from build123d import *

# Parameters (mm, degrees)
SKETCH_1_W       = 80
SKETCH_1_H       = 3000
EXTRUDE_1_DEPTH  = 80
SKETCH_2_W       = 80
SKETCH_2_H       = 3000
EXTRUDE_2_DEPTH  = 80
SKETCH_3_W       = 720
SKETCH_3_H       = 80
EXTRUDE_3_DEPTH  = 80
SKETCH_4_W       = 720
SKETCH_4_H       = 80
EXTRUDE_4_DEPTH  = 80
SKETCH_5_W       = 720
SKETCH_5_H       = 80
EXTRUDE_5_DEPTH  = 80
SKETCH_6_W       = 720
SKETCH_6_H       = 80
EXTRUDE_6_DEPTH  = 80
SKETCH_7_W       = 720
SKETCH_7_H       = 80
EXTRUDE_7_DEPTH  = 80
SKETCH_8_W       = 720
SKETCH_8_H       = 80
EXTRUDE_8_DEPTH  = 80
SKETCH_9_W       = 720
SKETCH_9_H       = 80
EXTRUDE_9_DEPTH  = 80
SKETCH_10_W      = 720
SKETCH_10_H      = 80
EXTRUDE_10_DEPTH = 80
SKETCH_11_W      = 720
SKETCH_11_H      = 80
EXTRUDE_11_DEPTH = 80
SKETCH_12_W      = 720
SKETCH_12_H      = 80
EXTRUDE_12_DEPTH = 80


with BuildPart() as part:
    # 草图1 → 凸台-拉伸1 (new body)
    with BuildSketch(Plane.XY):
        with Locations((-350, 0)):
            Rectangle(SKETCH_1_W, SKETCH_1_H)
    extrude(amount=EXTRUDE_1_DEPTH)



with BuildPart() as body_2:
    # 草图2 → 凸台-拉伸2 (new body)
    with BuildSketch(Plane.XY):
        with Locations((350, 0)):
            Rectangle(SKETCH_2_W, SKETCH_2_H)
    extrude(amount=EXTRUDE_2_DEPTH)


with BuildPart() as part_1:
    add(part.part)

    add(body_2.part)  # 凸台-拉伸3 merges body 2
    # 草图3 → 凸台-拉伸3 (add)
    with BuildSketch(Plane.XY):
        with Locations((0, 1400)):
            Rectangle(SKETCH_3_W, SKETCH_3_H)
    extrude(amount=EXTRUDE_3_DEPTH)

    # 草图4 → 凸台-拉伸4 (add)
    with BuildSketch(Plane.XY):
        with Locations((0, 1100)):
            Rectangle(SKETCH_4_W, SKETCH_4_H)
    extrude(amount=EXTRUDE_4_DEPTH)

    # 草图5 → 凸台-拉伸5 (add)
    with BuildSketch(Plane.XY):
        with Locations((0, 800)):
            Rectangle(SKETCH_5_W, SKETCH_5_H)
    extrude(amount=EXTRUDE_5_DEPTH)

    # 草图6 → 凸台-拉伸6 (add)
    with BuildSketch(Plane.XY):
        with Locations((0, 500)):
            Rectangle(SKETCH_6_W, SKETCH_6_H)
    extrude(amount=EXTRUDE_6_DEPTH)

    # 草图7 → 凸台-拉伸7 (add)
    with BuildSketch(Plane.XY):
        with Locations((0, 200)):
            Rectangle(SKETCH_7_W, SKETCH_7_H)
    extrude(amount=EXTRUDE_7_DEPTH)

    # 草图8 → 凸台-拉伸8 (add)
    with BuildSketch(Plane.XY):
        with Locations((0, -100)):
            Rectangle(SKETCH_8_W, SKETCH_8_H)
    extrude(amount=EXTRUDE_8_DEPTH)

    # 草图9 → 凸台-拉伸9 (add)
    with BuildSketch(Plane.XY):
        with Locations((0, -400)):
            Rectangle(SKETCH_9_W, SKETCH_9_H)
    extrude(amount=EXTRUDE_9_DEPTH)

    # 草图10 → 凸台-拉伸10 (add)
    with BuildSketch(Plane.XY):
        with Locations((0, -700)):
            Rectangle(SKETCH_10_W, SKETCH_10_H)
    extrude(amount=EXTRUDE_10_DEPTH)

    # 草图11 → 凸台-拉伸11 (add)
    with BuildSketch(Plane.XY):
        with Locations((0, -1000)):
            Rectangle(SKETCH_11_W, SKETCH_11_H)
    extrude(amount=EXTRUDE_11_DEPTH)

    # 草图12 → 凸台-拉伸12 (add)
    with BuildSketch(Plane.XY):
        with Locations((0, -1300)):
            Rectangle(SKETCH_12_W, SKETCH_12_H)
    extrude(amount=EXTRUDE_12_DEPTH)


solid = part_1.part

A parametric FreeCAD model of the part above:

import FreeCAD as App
import Part
import Sketcher


def add_polygon(sketch, points):
    """Adds a closed chain of lines whose ends are joined by coincident constraints."""
    first, n = sketch.GeometryCount, len(points)
    for a, b in zip(points, points[1:] + points[:1]):
        sketch.addGeometry(Part.LineSegment(App.Vector(*a, 0), App.Vector(*b, 0)), False)
    for i in range(n):
        sketch.addConstraint(Sketcher.Constraint("Coincident", first + i, 2, first + (i + 1) % n, 1))

doc = App.newDocument("Part")
params = doc.addObject("Spreadsheet::Sheet", "Params")
for row, (alias, value) in enumerate([
    ("sketch1_width", "80 mm"),
    ("sketch1_height", "3000 mm"),
    ("pad1_length", "80 mm"),
    ("sketch2_width", "80 mm"),
    ("sketch2_height", "3000 mm"),
    ("pad2_length", "80 mm"),
    ("sketch3_width", "720 mm"),
    ("sketch3_height", "80 mm"),
    ("pad3_length", "80 mm"),
    ("sketch4_width", "720 mm"),
    ("sketch4_height", "80 mm"),
    ("pad4_length", "80 mm"),
    ("sketch5_width", "720 mm"),
    ("sketch5_height", "80 mm"),
    ("pad5_length", "80 mm"),
    ("sketch6_width", "720 mm"),
    ("sketch6_height", "80 mm"),
    ("pad6_length", "80 mm"),
    ("sketch7_width", "720 mm"),
    ("sketch7_height", "80 mm"),
    ("pad7_length", "80 mm"),
    ("sketch8_width", "720 mm"),
    ("sketch8_height", "80 mm"),
    ("pad8_length", "80 mm"),
    ("sketch9_width", "720 mm"),
    ("sketch9_height", "80 mm"),
    ("pad9_length", "80 mm"),
    ("sketch10_width", "720 mm"),
    ("sketch10_height", "80 mm"),
    ("pad10_length", "80 mm"),
    ("sketch11_width", "720 mm"),
    ("sketch11_height", "80 mm"),
    ("pad11_length", "80 mm"),
    ("sketch12_width", "720 mm"),
    ("sketch12_height", "80 mm"),
    ("pad12_length", "80 mm"),
], start=1):
    params.set(f"A{row}", alias)
    params.set(f"B{row}", "=" + value)
    params.setAlias(f"B{row}", alias)

body = doc.addObject("PartDesign::Body", "Body")

# Sketch on XY plane
sketch1 = body.newObject("Sketcher::SketchObject", "Sketch")
sketch1.AttachmentSupport = (doc.getObject("XY_Plane"), [""])
sketch1.MapMode = "FlatFace"
add_polygon(sketch1, [(-390, 1500), (-390, -1500), (-310, -1500), (-310, 1500)])  # lines 0-3
sketch1.addConstraint([
    Sketcher.Constraint("Vertical", 0),
    Sketcher.Constraint("Horizontal", 1),
    Sketcher.Constraint("Vertical", 2),
    Sketcher.Constraint("Horizontal", 3),
    Sketcher.Constraint("DistanceX", 1, 1, 1, 2, 80.0),
    Sketcher.Constraint("DistanceY", 0, 2, 0, 1, 3000.0),
    Sketcher.Constraint("DistanceX", 0, 2, -1, 1, 390.0),
    Sketcher.Constraint("DistanceY", 0, 2, -1, 1, 1500.0),
])
sketch1.setExpression("Constraints[8]", "Params.sketch1_width")
sketch1.setExpression("Constraints[9]", "Params.sketch1_height")
pad1 = body.newObject("PartDesign::Pad", "Pad")
pad1.Profile = sketch1
pad1.setExpression("Length", "Params.pad1_length")
body2 = doc.addObject("PartDesign::Body", "Body001")

# Sketch on XY plane
sketch2 = body2.newObject("Sketcher::SketchObject", "Sketch001")
sketch2.AttachmentSupport = (doc.getObject("XY_Plane001"), [""])
sketch2.MapMode = "FlatFace"
add_polygon(sketch2, [(310, 1500), (310, -1500), (390, -1500), (390, 1500)])  # lines 0-3
sketch2.addConstraint([
    Sketcher.Constraint("Vertical", 0),
    Sketcher.Constraint("Horizontal", 1),
    Sketcher.Constraint("Vertical", 2),
    Sketcher.Constraint("Horizontal", 3),
    Sketcher.Constraint("DistanceX", 1, 1, 1, 2, 80.0),
    Sketcher.Constraint("DistanceY", 0, 2, 0, 1, 3000.0),
    Sketcher.Constraint("DistanceX", -1, 1, 0, 2, 310.0),
    Sketcher.Constraint("DistanceY", 0, 2, -1, 1, 1500.0),
])
sketch2.setExpression("Constraints[8]", "Params.sketch2_width")
sketch2.setExpression("Constraints[9]", "Params.sketch2_height")
pad2 = body2.newObject("PartDesign::Pad", "Pad001")
pad2.Profile = sketch2
pad2.setExpression("Length", "Params.pad2_length")
body.AllowCompound = True
doc.recompute()

boolean = body.newObject("PartDesign::Boolean", "Boolean")
boolean.Type = "Fuse"
boolean.addObjects([body2])

# Sketch on XY plane
sketch3 = body.newObject("Sketcher::SketchObject", "Sketch002")
sketch3.AttachmentSupport = (doc.getObject("XY_Plane"), [""])
sketch3.MapMode = "FlatFace"
add_polygon(sketch3, [(-360, 1440), (-360, 1360), (360, 1360), (360, 1440)])  # lines 0-3
sketch3.addConstraint([
    Sketcher.Constraint("Vertical", 0),
    Sketcher.Constraint("Horizontal", 1),
    Sketcher.Constraint("Vertical", 2),
    Sketcher.Constraint("Horizontal", 3),
    Sketcher.Constraint("DistanceX", 1, 1, 1, 2, 720.0),
    Sketcher.Constraint("DistanceY", 0, 2, 0, 1, 80.0),
    Sketcher.Constraint("DistanceX", 0, 2, -1, 1, 360.0),
    Sketcher.Constraint("DistanceY", -1, 1, 0, 2, 1360.0),
])
sketch3.setExpression("Constraints[8]", "Params.sketch3_width")
sketch3.setExpression("Constraints[9]", "Params.sketch3_height")
pad3 = body.newObject("PartDesign::Pad", "Pad002")
pad3.Profile = sketch3
pad3.setExpression("Length", "Params.pad3_length")

# Sketch on XY plane
sketch4 = body.newObject("Sketcher::SketchObject", "Sketch003")
sketch4.AttachmentSupport = (doc.getObject("XY_Plane"), [""])
sketch4.MapMode = "FlatFace"
add_polygon(sketch4, [(-360, 1140), (-360, 1060), (360, 1060), (360, 1140)])  # lines 0-3
sketch4.addConstraint([
    Sketcher.Constraint("Vertical", 0),
    Sketcher.Constraint("Horizontal", 1),
    Sketcher.Constraint("Vertical", 2),
    Sketcher.Constraint("Horizontal", 3),
    Sketcher.Constraint("DistanceX", 1, 1, 1, 2, 720.0),
    Sketcher.Constraint("DistanceY", 0, 2, 0, 1, 80.0),
    Sketcher.Constraint("DistanceX", 0, 2, -1, 1, 360.0),
    Sketcher.Constraint("DistanceY", -1, 1, 0, 2, 1060.0),
])
sketch4.setExpression("Constraints[8]", "Params.sketch4_width")
sketch4.setExpression("Constraints[9]", "Params.sketch4_height")
pad4 = body.newObject("PartDesign::Pad", "Pad003")
pad4.Profile = sketch4
pad4.setExpression("Length", "Params.pad4_length")

# Sketch on XY plane
sketch5 = body.newObject("Sketcher::SketchObject", "Sketch004")
sketch5.AttachmentSupport = (doc.getObject("XY_Plane"), [""])
sketch5.MapMode = "FlatFace"
add_polygon(sketch5, [(-360, 840), (-360, 760), (360, 760), (360, 840)])  # lines 0-3
sketch5.addConstraint([
    Sketcher.Constraint("Vertical", 0),
    Sketcher.Constraint("Horizontal", 1),
    Sketcher.Constraint("Vertical", 2),
    Sketcher.Constraint("Horizontal", 3),
    Sketcher.Constraint("DistanceX", 1, 1, 1, 2, 720.0),
    Sketcher.Constraint("DistanceY", 0, 2, 0, 1, 80.0),
    Sketcher.Constraint("DistanceX", 0, 2, -1, 1, 360.0),
    Sketcher.Constraint("DistanceY", -1, 1, 0, 2, 760.0),
])
sketch5.setExpression("Constraints[8]", "Params.sketch5_width")
sketch5.setExpression("Constraints[9]", "Params.sketch5_height")
pad5 = body.newObject("PartDesign::Pad", "Pad004")
pad5.Profile = sketch5
pad5.setExpression("Length", "Params.pad5_length")

# Sketch on XY plane
sketch6 = body.newObject("Sketcher::SketchObject", "Sketch005")
sketch6.AttachmentSupport = (doc.getObject("XY_Plane"), [""])
sketch6.MapMode = "FlatFace"
add_polygon(sketch6, [(-360, 540), (-360, 460), (360, 460), (360, 540)])  # lines 0-3
sketch6.addConstraint([
    Sketcher.Constraint("Vertical", 0),
    Sketcher.Constraint("Horizontal", 1),
    Sketcher.Constraint("Vertical", 2),
    Sketcher.Constraint("Horizontal", 3),
    Sketcher.Constraint("DistanceX", 1, 1, 1, 2, 720.0),
    Sketcher.Constraint("DistanceY", 0, 2, 0, 1, 80.0),
    Sketcher.Constraint("DistanceX", 0, 2, -1, 1, 360.0),
    Sketcher.Constraint("DistanceY", -1, 1, 0, 2, 460.0),
])
sketch6.setExpression("Constraints[8]", "Params.sketch6_width")
sketch6.setExpression("Constraints[9]", "Params.sketch6_height")
pad6 = body.newObject("PartDesign::Pad", "Pad005")
pad6.Profile = sketch6
pad6.setExpression("Length", "Params.pad6_length")

# Sketch on XY plane
sketch7 = body.newObject("Sketcher::SketchObject", "Sketch006")
sketch7.AttachmentSupport = (doc.getObject("XY_Plane"), [""])
sketch7.MapMode = "FlatFace"
add_polygon(sketch7, [(-360, 240), (-360, 160), (360, 160), (360, 240)])  # lines 0-3
sketch7.addConstraint([
    Sketcher.Constraint("Vertical", 0),
    Sketcher.Constraint("Horizontal", 1),
    Sketcher.Constraint("Vertical", 2),
    Sketcher.Constraint("Horizontal", 3),
    Sketcher.Constraint("DistanceX", 1, 1, 1, 2, 720.0),
    Sketcher.Constraint("DistanceY", 0, 2, 0, 1, 80.0),
    Sketcher.Constraint("DistanceX", 0, 2, -1, 1, 360.0),
    Sketcher.Constraint("DistanceY", -1, 1, 0, 2, 160.0),
])
sketch7.setExpression("Constraints[8]", "Params.sketch7_width")
sketch7.setExpression("Constraints[9]", "Params.sketch7_height")
pad7 = body.newObject("PartDesign::Pad", "Pad006")
pad7.Profile = sketch7
pad7.setExpression("Length", "Params.pad7_length")

# Sketch on XY plane
sketch8 = body.newObject("Sketcher::SketchObject", "Sketch007")
sketch8.AttachmentSupport = (doc.getObject("XY_Plane"), [""])
sketch8.MapMode = "FlatFace"
add_polygon(sketch8, [(-360, -60), (-360, -140), (360, -140), (360, -60)])  # lines 0-3
sketch8.addConstraint([
    Sketcher.Constraint("Vertical", 0),
    Sketcher.Constraint("Horizontal", 1),
    Sketcher.Constraint("Vertical", 2),
    Sketcher.Constraint("Horizontal", 3),
    Sketcher.Constraint("DistanceX", 1, 1, 1, 2, 720.0),
    Sketcher.Constraint("DistanceY", 0, 2, 0, 1, 80.0),
    Sketcher.Constraint("DistanceX", 0, 2, -1, 1, 360.0),
    Sketcher.Constraint("DistanceY", 0, 2, -1, 1, 140.0),
])
sketch8.setExpression("Constraints[8]", "Params.sketch8_width")
sketch8.setExpression("Constraints[9]", "Params.sketch8_height")
pad8 = body.newObject("PartDesign::Pad", "Pad007")
pad8.Profile = sketch8
pad8.setExpression("Length", "Params.pad8_length")

# Sketch on XY plane
sketch9 = body.newObject("Sketcher::SketchObject", "Sketch008")
sketch9.AttachmentSupport = (doc.getObject("XY_Plane"), [""])
sketch9.MapMode = "FlatFace"
add_polygon(sketch9, [(-360, -360), (-360, -440), (360, -440), (360, -360)])  # lines 0-3
sketch9.addConstraint([
    Sketcher.Constraint("Vertical", 0),
    Sketcher.Constraint("Horizontal", 1),
    Sketcher.Constraint("Vertical", 2),
    Sketcher.Constraint("Horizontal", 3),
    Sketcher.Constraint("DistanceX", 1, 1, 1, 2, 720.0),
    Sketcher.Constraint("DistanceY", 0, 2, 0, 1, 80.0),
    Sketcher.Constraint("DistanceX", 0, 2, -1, 1, 360.0),
    Sketcher.Constraint("DistanceY", 0, 2, -1, 1, 440.0),
])
sketch9.setExpression("Constraints[8]", "Params.sketch9_width")
sketch9.setExpression("Constraints[9]", "Params.sketch9_height")
pad9 = body.newObject("PartDesign::Pad", "Pad008")
pad9.Profile = sketch9
pad9.setExpression("Length", "Params.pad9_length")

# Sketch on XY plane
sketch10 = body.newObject("Sketcher::SketchObject", "Sketch009")
sketch10.AttachmentSupport = (doc.getObject("XY_Plane"), [""])
sketch10.MapMode = "FlatFace"
add_polygon(sketch10, [(-360, -660), (-360, -740), (360, -740), (360, -660)])  # lines 0-3
sketch10.addConstraint([
    Sketcher.Constraint("Vertical", 0),
    Sketcher.Constraint("Horizontal", 1),
    Sketcher.Constraint("Vertical", 2),
    Sketcher.Constraint("Horizontal", 3),
    Sketcher.Constraint("DistanceX", 1, 1, 1, 2, 720.0),
    Sketcher.Constraint("DistanceY", 0, 2, 0, 1, 80.0),
    Sketcher.Constraint("DistanceX", 0, 2, -1, 1, 360.0),
    Sketcher.Constraint("DistanceY", 0, 2, -1, 1, 740.0),
])
sketch10.setExpression("Constraints[8]", "Params.sketch10_width")
sketch10.setExpression("Constraints[9]", "Params.sketch10_height")
pad10 = body.newObject("PartDesign::Pad", "Pad009")
pad10.Profile = sketch10
pad10.setExpression("Length", "Params.pad10_length")

# Sketch on XY plane
sketch11 = body.newObject("Sketcher::SketchObject", "Sketch010")
sketch11.AttachmentSupport = (doc.getObject("XY_Plane"), [""])
sketch11.MapMode = "FlatFace"
add_polygon(sketch11, [(-360, -960), (-360, -1040), (360, -1040), (360, -960)])  # lines 0-3
sketch11.addConstraint([
    Sketcher.Constraint("Vertical", 0),
    Sketcher.Constraint("Horizontal", 1),
    Sketcher.Constraint("Vertical", 2),
    Sketcher.Constraint("Horizontal", 3),
    Sketcher.Constraint("DistanceX", 1, 1, 1, 2, 720.0),
    Sketcher.Constraint("DistanceY", 0, 2, 0, 1, 80.0),
    Sketcher.Constraint("DistanceX", 0, 2, -1, 1, 360.0),
    Sketcher.Constraint("DistanceY", 0, 2, -1, 1, 1040.0),
])
sketch11.setExpression("Constraints[8]", "Params.sketch11_width")
sketch11.setExpression("Constraints[9]", "Params.sketch11_height")
pad11 = body.newObject("PartDesign::Pad", "Pad010")
pad11.Profile = sketch11
pad11.setExpression("Length", "Params.pad11_length")

# Sketch on XY plane
sketch12 = body.newObject("Sketcher::SketchObject", "Sketch011")
sketch12.AttachmentSupport = (doc.getObject("XY_Plane"), [""])
sketch12.MapMode = "FlatFace"
add_polygon(sketch12, [(-360, -1260), (-360, -1340), (360, -1340), (360, -1260)])  # lines 0-3
sketch12.addConstraint([
    Sketcher.Constraint("Vertical", 0),
    Sketcher.Constraint("Horizontal", 1),
    Sketcher.Constraint("Vertical", 2),
    Sketcher.Constraint("Horizontal", 3),
    Sketcher.Constraint("DistanceX", 1, 1, 1, 2, 720.0),
    Sketcher.Constraint("DistanceY", 0, 2, 0, 1, 80.0),
    Sketcher.Constraint("DistanceX", 0, 2, -1, 1, 360.0),
    Sketcher.Constraint("DistanceY", 0, 2, -1, 1, 1340.0),
])
sketch12.setExpression("Constraints[8]", "Params.sketch12_width")
sketch12.setExpression("Constraints[9]", "Params.sketch12_height")
pad12 = body.newObject("PartDesign::Pad", "Pad011")
pad12.Profile = sketch12
pad12.setExpression("Length", "Params.pad12_length")

doc.recompute()
